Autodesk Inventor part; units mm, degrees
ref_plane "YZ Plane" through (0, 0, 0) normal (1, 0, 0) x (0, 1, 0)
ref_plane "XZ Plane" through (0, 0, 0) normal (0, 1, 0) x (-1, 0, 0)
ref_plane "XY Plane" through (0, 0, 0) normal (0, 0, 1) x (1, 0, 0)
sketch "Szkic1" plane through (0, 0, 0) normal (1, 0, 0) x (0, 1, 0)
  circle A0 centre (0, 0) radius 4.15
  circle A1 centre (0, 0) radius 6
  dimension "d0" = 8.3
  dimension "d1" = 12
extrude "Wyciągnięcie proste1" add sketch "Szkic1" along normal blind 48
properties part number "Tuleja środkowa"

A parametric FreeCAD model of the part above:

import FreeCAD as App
import Part
import Sketcher
from FreeCAD import Vector

doc = App.newDocument("Part")
body = doc.addObject("PartDesign::Body", "Body")

# Sketch on YZ plane
sketch1 = body.newObject("Sketcher::SketchObject", "Sketch")
sketch1.AttachmentSupport = (doc.getObject("YZ_Plane"), [""])
sketch1.MapMode = "FlatFace"
sketch1.addGeometry([
    Part.Circle(Vector(0, 0, 0), Vector(0, 0, 1), 6),
    Part.Circle(Vector(0, 0, 0), Vector(0, 0, 1), 4.15),
], False)
sketch1.addConstraint([
    Sketcher.Constraint("Coincident", 0, 3, -1, 1),
    Sketcher.Constraint("Coincident", 1, 3, -1, 1),
    Sketcher.Constraint("Diameter", 0, 12.0),
    Sketcher.Constraint("Diameter", 1, 8.3),
])
pad1 = body.newObject("PartDesign::Pad", "Pad")
pad1.Profile = sketch1
pad1.Length = 48

doc.recompute()
